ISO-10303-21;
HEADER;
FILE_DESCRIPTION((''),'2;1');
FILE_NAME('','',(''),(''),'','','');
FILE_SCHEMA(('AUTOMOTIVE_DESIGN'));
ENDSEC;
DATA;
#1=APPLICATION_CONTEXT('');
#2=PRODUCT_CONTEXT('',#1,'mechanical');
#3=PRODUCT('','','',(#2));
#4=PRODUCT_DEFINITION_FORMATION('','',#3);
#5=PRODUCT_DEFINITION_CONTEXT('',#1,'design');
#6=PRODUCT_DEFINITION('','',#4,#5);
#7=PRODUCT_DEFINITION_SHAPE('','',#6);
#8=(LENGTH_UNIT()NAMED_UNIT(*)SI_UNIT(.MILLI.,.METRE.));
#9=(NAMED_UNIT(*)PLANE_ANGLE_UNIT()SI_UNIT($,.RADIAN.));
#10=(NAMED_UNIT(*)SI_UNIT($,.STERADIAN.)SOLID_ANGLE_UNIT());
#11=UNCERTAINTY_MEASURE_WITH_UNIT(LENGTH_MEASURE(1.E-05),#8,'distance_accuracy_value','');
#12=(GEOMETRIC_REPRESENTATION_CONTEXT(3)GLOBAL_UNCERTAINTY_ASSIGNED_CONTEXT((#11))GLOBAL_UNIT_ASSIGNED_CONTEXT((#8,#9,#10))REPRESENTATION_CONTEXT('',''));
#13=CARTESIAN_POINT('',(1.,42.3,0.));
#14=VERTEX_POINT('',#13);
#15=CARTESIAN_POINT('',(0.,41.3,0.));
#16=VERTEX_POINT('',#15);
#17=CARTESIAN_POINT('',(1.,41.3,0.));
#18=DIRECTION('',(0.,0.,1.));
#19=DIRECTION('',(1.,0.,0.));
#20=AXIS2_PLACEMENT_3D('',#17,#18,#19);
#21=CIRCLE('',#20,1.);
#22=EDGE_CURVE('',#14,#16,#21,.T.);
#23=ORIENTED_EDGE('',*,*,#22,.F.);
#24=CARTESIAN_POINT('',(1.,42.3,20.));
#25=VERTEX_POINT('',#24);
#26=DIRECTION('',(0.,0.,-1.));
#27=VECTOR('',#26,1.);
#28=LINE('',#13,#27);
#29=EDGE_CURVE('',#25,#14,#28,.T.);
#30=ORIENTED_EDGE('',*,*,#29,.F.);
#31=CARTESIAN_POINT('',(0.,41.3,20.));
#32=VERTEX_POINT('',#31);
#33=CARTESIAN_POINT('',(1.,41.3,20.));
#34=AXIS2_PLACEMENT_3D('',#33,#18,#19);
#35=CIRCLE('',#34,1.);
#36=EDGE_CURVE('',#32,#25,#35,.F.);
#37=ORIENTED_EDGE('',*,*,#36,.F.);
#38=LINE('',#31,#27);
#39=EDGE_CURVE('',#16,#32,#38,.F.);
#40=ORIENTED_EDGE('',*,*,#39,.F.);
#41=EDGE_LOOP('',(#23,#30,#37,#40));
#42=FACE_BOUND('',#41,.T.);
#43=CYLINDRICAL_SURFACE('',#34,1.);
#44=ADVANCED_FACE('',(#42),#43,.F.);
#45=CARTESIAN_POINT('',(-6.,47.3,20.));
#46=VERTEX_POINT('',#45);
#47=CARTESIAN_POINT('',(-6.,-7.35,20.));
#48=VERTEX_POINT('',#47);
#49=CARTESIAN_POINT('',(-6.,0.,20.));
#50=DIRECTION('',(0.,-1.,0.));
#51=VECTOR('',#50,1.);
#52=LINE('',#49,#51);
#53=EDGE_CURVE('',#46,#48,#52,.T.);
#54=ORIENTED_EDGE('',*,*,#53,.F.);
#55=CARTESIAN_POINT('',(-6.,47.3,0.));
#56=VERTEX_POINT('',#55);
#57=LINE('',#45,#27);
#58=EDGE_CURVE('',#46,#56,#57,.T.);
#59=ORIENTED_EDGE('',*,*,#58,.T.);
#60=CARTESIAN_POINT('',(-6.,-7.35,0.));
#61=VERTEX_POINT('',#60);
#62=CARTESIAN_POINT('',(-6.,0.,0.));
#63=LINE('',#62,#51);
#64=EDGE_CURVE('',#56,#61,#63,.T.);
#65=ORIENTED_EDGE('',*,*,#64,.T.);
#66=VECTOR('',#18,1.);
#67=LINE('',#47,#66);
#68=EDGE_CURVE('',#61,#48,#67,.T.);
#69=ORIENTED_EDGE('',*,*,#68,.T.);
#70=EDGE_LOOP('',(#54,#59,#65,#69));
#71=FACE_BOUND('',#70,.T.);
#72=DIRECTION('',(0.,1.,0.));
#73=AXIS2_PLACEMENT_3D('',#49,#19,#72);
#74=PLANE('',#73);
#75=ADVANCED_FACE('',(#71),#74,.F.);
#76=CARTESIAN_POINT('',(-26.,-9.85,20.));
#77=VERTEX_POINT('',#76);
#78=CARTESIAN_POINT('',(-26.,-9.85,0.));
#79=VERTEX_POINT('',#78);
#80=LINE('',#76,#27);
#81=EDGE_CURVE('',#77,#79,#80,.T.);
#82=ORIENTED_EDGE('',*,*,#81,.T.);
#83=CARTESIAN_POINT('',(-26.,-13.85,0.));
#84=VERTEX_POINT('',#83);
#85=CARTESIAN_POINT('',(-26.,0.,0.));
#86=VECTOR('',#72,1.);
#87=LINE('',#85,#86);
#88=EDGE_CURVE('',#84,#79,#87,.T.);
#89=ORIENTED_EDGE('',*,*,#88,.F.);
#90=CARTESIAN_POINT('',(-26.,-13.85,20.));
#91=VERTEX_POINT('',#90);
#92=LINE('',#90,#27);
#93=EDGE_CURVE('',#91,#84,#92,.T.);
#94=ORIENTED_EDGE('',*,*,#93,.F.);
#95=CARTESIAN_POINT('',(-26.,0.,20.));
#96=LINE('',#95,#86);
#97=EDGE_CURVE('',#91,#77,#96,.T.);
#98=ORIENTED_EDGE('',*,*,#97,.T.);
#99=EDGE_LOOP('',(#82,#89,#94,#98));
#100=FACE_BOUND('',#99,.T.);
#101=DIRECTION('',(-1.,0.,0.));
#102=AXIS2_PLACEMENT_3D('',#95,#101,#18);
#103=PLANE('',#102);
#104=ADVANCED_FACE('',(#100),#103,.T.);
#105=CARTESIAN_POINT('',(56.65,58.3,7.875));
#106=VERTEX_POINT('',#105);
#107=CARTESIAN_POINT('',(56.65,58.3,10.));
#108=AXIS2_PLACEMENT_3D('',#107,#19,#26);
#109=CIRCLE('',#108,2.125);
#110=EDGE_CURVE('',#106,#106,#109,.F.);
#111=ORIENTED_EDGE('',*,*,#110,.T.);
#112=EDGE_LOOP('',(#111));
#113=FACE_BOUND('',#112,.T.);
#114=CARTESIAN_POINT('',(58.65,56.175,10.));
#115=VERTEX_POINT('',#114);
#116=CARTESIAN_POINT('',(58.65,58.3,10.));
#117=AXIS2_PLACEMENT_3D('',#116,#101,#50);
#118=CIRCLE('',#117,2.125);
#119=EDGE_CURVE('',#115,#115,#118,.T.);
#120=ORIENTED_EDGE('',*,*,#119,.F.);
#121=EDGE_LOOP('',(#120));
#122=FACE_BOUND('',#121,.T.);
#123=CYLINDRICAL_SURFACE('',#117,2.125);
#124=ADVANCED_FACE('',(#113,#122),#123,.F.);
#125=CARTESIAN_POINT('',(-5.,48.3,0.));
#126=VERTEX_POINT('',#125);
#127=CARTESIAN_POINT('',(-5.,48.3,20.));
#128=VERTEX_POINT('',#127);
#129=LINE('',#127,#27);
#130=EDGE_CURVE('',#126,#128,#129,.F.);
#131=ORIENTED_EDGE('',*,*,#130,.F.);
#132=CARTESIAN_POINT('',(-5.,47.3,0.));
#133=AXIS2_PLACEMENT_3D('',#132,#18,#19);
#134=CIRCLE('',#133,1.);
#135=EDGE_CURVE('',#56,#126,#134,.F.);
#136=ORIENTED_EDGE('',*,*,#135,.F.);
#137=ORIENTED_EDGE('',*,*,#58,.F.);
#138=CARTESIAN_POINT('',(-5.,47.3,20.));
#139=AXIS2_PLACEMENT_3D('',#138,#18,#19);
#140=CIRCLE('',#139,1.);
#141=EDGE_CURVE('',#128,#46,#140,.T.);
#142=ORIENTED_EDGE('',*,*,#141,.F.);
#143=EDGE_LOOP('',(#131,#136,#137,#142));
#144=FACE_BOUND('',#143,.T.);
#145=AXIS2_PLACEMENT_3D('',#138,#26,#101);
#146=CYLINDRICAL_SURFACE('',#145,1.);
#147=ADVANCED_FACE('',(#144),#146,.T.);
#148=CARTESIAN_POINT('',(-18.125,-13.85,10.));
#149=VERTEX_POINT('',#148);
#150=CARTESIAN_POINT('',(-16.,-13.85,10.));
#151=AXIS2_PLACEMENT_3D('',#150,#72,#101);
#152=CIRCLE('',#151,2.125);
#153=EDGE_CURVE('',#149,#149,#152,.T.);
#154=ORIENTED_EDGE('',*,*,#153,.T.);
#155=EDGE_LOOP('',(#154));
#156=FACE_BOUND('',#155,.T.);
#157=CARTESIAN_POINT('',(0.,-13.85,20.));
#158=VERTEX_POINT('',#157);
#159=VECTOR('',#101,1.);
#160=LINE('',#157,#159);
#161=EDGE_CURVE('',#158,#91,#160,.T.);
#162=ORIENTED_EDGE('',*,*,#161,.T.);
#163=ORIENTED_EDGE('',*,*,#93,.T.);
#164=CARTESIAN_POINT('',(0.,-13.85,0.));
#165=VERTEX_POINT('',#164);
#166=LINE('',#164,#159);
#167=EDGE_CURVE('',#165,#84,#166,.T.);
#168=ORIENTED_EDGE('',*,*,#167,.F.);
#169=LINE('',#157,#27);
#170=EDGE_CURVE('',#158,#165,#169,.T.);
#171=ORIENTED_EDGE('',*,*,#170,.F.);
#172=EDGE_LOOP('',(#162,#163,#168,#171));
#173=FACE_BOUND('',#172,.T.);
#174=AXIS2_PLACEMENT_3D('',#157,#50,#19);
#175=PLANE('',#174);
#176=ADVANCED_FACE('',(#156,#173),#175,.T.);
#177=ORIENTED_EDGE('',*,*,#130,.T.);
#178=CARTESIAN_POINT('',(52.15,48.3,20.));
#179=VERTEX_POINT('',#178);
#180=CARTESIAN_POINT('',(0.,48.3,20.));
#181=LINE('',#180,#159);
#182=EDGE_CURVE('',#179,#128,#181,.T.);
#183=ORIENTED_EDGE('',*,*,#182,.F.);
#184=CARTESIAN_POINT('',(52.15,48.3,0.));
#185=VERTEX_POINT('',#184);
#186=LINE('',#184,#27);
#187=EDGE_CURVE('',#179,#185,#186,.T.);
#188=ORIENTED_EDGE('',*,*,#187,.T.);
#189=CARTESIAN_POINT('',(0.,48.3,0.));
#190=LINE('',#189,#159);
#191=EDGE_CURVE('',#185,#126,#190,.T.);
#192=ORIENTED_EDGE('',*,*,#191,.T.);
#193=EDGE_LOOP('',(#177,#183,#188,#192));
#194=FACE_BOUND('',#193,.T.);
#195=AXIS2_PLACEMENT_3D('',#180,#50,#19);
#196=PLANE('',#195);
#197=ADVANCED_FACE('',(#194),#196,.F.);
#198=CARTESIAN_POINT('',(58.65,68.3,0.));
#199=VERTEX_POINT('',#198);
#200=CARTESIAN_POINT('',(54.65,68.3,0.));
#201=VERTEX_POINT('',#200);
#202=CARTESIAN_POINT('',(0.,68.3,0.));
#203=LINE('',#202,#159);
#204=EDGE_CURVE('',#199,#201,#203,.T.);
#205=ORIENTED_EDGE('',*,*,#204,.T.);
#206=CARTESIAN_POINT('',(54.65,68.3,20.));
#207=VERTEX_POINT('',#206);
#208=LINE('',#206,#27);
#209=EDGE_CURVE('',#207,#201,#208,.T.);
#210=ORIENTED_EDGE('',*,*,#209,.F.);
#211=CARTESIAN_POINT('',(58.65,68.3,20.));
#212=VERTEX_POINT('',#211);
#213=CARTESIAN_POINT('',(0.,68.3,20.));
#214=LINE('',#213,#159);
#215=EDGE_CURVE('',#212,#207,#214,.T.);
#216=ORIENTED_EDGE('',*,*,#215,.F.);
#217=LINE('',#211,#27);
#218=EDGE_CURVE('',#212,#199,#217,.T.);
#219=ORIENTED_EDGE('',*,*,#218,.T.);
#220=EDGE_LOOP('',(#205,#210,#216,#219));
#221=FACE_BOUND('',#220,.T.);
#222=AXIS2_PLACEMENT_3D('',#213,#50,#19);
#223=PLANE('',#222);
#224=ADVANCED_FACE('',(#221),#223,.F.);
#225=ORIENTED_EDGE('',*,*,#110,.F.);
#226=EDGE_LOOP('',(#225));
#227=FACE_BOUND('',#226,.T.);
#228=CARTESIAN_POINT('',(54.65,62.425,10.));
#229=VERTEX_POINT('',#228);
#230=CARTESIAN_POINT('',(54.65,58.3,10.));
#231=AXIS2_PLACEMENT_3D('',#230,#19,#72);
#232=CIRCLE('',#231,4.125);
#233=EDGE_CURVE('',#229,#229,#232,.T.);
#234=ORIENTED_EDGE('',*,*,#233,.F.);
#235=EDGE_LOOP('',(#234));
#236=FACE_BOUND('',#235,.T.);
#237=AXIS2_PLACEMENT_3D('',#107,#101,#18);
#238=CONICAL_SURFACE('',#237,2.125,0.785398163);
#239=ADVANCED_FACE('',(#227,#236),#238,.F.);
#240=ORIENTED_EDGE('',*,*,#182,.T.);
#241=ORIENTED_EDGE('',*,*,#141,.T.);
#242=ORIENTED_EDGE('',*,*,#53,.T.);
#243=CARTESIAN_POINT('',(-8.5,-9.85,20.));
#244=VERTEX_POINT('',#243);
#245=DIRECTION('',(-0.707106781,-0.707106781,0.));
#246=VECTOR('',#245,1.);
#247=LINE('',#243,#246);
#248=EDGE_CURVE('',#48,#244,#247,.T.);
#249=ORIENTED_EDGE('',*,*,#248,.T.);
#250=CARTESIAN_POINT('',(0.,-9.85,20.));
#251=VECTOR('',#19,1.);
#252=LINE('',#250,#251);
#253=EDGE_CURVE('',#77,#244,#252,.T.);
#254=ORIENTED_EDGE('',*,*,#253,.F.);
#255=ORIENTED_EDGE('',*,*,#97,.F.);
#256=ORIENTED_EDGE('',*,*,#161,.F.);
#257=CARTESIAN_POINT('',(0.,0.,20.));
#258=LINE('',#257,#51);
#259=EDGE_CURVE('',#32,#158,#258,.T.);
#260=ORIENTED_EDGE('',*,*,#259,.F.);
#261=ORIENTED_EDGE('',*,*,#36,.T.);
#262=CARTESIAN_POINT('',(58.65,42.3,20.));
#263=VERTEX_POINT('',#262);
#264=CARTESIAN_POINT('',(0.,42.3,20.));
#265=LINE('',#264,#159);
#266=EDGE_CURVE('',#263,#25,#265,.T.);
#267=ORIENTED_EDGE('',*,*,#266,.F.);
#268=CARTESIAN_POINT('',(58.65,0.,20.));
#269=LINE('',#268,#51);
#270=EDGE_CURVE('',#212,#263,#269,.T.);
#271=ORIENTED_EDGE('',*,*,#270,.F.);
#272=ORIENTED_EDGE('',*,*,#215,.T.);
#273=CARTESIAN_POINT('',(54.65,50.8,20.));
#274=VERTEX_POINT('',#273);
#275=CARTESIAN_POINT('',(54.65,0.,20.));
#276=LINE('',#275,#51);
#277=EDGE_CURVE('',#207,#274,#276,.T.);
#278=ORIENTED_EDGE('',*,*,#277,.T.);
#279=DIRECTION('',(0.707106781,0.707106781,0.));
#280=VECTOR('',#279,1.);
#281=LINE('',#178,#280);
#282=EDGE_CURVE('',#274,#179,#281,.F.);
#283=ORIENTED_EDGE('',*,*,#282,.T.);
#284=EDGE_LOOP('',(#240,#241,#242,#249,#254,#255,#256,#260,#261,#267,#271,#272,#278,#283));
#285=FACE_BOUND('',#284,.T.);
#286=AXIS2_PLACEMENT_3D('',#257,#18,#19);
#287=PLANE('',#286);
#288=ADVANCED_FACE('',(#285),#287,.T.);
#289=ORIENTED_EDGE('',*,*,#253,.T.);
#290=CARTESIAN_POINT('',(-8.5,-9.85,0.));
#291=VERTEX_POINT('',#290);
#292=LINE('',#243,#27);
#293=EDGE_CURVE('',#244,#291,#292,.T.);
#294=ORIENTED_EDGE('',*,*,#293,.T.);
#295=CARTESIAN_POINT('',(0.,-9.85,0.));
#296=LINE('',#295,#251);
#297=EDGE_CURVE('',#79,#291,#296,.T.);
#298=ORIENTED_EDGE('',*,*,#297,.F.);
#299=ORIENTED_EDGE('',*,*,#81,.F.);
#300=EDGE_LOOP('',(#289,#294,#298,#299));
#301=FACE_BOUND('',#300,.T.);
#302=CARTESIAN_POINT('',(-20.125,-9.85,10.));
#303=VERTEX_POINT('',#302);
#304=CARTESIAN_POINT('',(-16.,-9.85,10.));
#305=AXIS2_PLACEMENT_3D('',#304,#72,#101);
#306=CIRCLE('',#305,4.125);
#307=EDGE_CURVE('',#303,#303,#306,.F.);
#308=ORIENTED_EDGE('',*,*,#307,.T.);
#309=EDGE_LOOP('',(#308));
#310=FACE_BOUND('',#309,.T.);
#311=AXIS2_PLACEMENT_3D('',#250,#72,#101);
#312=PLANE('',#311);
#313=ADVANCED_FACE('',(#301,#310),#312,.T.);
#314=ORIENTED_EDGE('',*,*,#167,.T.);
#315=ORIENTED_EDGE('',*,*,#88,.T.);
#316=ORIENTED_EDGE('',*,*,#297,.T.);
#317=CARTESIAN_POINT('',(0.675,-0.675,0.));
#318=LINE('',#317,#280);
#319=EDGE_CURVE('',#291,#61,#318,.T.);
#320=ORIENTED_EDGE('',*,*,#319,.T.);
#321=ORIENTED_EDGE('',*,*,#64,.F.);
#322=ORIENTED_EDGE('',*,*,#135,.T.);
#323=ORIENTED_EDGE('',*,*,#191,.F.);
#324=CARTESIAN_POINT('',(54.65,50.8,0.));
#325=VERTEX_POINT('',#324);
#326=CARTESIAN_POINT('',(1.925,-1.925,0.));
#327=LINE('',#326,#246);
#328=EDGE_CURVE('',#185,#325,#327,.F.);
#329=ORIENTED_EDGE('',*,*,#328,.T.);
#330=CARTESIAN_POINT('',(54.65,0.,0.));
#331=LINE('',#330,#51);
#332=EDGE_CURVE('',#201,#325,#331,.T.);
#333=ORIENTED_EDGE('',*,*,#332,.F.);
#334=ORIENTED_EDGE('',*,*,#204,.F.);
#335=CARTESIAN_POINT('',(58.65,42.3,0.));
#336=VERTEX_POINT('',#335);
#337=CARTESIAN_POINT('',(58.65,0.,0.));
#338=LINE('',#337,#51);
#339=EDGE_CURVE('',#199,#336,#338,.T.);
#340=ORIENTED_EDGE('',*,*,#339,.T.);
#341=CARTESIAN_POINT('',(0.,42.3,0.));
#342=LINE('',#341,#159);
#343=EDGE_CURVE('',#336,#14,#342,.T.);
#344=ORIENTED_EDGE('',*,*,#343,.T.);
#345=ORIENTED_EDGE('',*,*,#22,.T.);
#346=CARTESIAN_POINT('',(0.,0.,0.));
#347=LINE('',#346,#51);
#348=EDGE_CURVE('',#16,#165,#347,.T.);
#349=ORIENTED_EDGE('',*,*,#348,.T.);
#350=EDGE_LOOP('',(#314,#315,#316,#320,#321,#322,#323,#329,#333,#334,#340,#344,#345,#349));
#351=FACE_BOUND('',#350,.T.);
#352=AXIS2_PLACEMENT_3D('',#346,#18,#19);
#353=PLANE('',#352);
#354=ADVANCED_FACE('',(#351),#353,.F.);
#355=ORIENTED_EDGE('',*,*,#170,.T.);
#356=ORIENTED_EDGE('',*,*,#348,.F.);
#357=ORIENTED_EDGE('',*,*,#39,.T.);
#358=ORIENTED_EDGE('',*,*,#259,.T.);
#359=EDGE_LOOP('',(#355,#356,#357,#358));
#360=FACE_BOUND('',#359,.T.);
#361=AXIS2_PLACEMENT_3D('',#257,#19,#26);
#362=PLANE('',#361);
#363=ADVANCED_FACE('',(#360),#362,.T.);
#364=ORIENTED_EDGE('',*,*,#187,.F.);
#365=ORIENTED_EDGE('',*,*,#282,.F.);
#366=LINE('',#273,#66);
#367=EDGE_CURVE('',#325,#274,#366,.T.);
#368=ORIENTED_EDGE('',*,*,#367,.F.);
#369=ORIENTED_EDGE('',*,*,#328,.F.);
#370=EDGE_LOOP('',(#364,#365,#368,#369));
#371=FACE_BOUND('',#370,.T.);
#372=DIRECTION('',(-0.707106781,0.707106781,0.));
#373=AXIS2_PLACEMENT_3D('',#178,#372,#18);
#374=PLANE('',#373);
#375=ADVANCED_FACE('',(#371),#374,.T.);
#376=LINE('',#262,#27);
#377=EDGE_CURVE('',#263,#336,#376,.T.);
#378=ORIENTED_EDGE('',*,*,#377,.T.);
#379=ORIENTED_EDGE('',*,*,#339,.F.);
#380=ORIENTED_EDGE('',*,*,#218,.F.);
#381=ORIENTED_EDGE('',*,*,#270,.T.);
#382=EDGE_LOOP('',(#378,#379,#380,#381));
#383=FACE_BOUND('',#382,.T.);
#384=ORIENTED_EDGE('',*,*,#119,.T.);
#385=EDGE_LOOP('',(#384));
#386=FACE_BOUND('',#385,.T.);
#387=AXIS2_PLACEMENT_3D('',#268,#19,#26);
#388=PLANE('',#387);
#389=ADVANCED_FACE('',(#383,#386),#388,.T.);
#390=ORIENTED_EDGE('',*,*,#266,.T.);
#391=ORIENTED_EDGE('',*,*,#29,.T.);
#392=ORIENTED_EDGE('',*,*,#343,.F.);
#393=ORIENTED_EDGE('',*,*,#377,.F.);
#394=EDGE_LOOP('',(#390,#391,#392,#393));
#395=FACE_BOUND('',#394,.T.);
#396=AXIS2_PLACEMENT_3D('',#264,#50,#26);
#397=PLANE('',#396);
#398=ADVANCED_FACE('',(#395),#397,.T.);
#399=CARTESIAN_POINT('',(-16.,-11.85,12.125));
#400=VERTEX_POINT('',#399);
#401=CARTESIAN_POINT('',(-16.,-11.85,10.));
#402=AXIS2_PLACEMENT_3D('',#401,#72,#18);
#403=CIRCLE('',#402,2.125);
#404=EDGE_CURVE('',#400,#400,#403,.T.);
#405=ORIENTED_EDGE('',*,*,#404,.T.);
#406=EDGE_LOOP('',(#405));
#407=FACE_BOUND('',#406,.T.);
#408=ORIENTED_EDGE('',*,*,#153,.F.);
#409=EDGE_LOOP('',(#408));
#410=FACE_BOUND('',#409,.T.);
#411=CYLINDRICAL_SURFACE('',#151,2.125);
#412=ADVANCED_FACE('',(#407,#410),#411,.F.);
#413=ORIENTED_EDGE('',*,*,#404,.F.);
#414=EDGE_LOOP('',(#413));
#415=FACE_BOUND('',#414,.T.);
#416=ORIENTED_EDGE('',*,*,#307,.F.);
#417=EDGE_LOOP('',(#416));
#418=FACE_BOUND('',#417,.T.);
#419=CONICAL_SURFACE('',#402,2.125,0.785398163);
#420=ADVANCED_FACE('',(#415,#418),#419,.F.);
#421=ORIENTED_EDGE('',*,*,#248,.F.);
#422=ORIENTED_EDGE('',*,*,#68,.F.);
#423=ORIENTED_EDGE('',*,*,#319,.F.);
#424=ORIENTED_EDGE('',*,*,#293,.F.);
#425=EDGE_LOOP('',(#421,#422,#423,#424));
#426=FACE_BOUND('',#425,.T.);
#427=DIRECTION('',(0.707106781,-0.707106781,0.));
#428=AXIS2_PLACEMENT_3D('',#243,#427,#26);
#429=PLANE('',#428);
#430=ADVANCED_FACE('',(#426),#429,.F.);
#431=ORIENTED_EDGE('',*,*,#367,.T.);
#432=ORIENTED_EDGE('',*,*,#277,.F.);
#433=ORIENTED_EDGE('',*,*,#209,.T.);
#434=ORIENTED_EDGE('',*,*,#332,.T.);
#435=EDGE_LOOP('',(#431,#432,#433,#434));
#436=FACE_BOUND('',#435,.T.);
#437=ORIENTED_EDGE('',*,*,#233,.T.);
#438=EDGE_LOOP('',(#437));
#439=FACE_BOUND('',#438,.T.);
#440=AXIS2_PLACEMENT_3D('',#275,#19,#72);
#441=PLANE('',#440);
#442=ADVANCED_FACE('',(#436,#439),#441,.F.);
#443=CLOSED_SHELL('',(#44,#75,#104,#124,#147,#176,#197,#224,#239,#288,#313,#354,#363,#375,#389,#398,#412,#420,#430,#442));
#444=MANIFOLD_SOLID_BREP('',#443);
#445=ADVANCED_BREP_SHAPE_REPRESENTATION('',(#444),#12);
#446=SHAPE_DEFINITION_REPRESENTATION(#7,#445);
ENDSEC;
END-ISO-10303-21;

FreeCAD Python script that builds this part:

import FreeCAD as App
import Part
import Sketcher
from FreeCAD import Vector


def edges_at(feature, points):
    """Names of the edges that pass closest to the given points."""
    edges = feature.Shape.Edges
    near = lambda p: min(range(len(edges)), key=lambda i: edges[i].distToShape(Part.Vertex(*p))[0])
    return sorted({f"Edge{near(p) + 1}" for p in points})

doc = App.newDocument("Part")
body = doc.addObject("PartDesign::Body", "Body")

# Sketch on XY plane
sketch1 = body.newObject("Sketcher::SketchObject", "Sketch")
sketch1.AttachmentSupport = (doc.getObject("XY_Plane"), [""])
sketch1.MapMode = "FlatFace"
sketch1.addGeometry([
    Part.LineSegment(Vector(-26, -9.85, 0), Vector(-26, -13.85, 0)),  # 0
    Part.LineSegment(Vector(-26, -13.85, 0), Vector(0, -13.85, 0)),  # 1
    Part.LineSegment(Vector(0, -13.85, 0), Vector(0, 42.3, 0)),  # 2
    Part.LineSegment(Vector(0, 42.3, 0), Vector(58.65, 42.3, 0)),  # 3
    Part.LineSegment(Vector(58.65, 42.3, 0), Vector(58.65, 68.3, 0)),  # 4
    Part.LineSegment(Vector(58.65, 68.3, 0), Vector(54.65, 68.3, 0)),  # 5
    Part.LineSegment(Vector(54.65, 68.3, 0), Vector(54.65, 48.3, 0)),  # 6
    Part.LineSegment(Vector(54.65, 48.3, 0), Vector(-6, 48.3, 0)),  # 7
    Part.LineSegment(Vector(-6, 48.3, 0), Vector(-6, -9.85, 0)),  # 8
    Part.LineSegment(Vector(-6, -9.85, 0), Vector(-26, -9.85, 0)),  # 9
], False)
sketch1.addConstraint([
    Sketcher.Constraint("Coincident", 0, 2, 1, 1),
    Sketcher.Constraint("Coincident", 1, 2, 2, 1),
    Sketcher.Constraint("Coincident", 2, 2, 3, 1),
    Sketcher.Constraint("Coincident", 3, 2, 4, 1),
    Sketcher.Constraint("Coincident", 4, 2, 5, 1),
    Sketcher.Constraint("Coincident", 5, 2, 6, 1),
    Sketcher.Constraint("Coincident", 6, 2, 7, 1),
    Sketcher.Constraint("Coincident", 7, 2, 8, 1),
    Sketcher.Constraint("Coincident", 8, 2, 9, 1),
    Sketcher.Constraint("Coincident", 9, 2, 0, 1),
    Sketcher.Constraint("Vertical", 0),
    Sketcher.Constraint("Horizontal", 1),
    Sketcher.Constraint("Vertical", 2),
    Sketcher.Constraint("Horizontal", 3),
    Sketcher.Constraint("Vertical", 4),
    Sketcher.Constraint("Horizontal", 5),
    Sketcher.Constraint("Vertical", 6),
    Sketcher.Constraint("Horizontal", 7),
    Sketcher.Constraint("Vertical", 8),
    Sketcher.Constraint("Horizontal", 9),
    Sketcher.Constraint("PointOnObject", 1, 2, -2),
    Sketcher.Constraint("Equal", 5, 0),
    Sketcher.Constraint("Equal", 1, 4),
    Sketcher.Constraint("Equal", 9, 6),
    Sketcher.Constraint("DistanceX", 1, 1, 1, 2, 26.0),
    Sketcher.Constraint("DistanceX", 5, 2, 5, 1, 4.0),
    Sketcher.Constraint("DistanceX", 9, 2, 9, 1, 20.0),
    Sketcher.Constraint("DistanceX", 3, 1, 3, 2, 58.65),
    Sketcher.Constraint("DistanceY", 2, 1, 2, 2, 56.15),
    Sketcher.Constraint("DistanceY", -1, 1, 2, 2, 42.3),
])
pad1 = body.newObject("PartDesign::Pad", "Pad")
pad1.Profile = sketch1
pad1.Length = 20

# Sketch on XZ plane
sketch2 = body.newObject("Sketcher::SketchObject", "Sketch001")
sketch2.AttachmentSupport = (doc.getObject("XZ_Plane"), [""])
sketch2.MapMode = "FlatFace"
sketch2.AttachmentOffset = App.Placement(Vector(0, 0, 9.85), App.Rotation())
sketch2.addGeometry(Part.Circle(Vector(-16, 10, 0), Vector(0, 0, 1), 2.125), False)
sketch2.addConstraint([
    Sketcher.Constraint("Diameter", 0, 4.25),
    Sketcher.Constraint("DistanceX", 0, 3, -1, 1, 16.0),
    Sketcher.Constraint("DistanceY", -1, 1, 0, 3, 10.0),
])
pocket1 = body.newObject("PartDesign::Pocket", "Pocket")
pocket1.Profile = sketch2
pocket1.Type = "ThroughAll"
pocket1.Reversed = True

# Sketch on YZ plane
sketch3 = body.newObject("Sketcher::SketchObject", "Sketch002")
sketch3.AttachmentSupport = (doc.getObject("YZ_Plane"), [""])
sketch3.MapMode = "FlatFace"
sketch3.AttachmentOffset = App.Placement(Vector(0, 0, 54.65), App.Rotation())
sketch3.addGeometry(Part.Circle(Vector(58.3, 10, 0), Vector(0, 0, 1), 2.125), False)
sketch3.addConstraint([
    Sketcher.Constraint("Diameter", 0, 4.25),
    Sketcher.Constraint("DistanceY", -1, 1, 0, 3, 10.0),
    Sketcher.Constraint("DistanceX", -1, 1, 0, 3, 58.3),
])
pocket2 = body.newObject("PartDesign::Pocket", "Pocket001")
pocket2.Profile = sketch3
pocket2.Type = "ThroughAll"
pocket2.Reversed = True
doc.recompute()

chamfer = body.newObject("PartDesign::Chamfer", "Chamfer")
chamfer.Base = (pocket2, edges_at(pocket2, [(-13.875, -9.85, 10), (54.65, 60.425, 10)]))
chamfer.Size = 2
doc.recompute()

chamfer2 = body.newObject("PartDesign::Chamfer", "Chamfer001")
chamfer2.Base = (chamfer, edges_at(chamfer, [(-6, -9.85, 10), (54.65, 48.3, 10)]))
chamfer2.Size = 2.5
doc.recompute()

fillet = body.newObject("PartDesign::Fillet", "Fillet")
fillet.Base = (chamfer2, edges_at(chamfer2, [(-6, 48.3, 10), (0, 42.3, 10)]))
fillet.Radius = 1

doc.recompute()
